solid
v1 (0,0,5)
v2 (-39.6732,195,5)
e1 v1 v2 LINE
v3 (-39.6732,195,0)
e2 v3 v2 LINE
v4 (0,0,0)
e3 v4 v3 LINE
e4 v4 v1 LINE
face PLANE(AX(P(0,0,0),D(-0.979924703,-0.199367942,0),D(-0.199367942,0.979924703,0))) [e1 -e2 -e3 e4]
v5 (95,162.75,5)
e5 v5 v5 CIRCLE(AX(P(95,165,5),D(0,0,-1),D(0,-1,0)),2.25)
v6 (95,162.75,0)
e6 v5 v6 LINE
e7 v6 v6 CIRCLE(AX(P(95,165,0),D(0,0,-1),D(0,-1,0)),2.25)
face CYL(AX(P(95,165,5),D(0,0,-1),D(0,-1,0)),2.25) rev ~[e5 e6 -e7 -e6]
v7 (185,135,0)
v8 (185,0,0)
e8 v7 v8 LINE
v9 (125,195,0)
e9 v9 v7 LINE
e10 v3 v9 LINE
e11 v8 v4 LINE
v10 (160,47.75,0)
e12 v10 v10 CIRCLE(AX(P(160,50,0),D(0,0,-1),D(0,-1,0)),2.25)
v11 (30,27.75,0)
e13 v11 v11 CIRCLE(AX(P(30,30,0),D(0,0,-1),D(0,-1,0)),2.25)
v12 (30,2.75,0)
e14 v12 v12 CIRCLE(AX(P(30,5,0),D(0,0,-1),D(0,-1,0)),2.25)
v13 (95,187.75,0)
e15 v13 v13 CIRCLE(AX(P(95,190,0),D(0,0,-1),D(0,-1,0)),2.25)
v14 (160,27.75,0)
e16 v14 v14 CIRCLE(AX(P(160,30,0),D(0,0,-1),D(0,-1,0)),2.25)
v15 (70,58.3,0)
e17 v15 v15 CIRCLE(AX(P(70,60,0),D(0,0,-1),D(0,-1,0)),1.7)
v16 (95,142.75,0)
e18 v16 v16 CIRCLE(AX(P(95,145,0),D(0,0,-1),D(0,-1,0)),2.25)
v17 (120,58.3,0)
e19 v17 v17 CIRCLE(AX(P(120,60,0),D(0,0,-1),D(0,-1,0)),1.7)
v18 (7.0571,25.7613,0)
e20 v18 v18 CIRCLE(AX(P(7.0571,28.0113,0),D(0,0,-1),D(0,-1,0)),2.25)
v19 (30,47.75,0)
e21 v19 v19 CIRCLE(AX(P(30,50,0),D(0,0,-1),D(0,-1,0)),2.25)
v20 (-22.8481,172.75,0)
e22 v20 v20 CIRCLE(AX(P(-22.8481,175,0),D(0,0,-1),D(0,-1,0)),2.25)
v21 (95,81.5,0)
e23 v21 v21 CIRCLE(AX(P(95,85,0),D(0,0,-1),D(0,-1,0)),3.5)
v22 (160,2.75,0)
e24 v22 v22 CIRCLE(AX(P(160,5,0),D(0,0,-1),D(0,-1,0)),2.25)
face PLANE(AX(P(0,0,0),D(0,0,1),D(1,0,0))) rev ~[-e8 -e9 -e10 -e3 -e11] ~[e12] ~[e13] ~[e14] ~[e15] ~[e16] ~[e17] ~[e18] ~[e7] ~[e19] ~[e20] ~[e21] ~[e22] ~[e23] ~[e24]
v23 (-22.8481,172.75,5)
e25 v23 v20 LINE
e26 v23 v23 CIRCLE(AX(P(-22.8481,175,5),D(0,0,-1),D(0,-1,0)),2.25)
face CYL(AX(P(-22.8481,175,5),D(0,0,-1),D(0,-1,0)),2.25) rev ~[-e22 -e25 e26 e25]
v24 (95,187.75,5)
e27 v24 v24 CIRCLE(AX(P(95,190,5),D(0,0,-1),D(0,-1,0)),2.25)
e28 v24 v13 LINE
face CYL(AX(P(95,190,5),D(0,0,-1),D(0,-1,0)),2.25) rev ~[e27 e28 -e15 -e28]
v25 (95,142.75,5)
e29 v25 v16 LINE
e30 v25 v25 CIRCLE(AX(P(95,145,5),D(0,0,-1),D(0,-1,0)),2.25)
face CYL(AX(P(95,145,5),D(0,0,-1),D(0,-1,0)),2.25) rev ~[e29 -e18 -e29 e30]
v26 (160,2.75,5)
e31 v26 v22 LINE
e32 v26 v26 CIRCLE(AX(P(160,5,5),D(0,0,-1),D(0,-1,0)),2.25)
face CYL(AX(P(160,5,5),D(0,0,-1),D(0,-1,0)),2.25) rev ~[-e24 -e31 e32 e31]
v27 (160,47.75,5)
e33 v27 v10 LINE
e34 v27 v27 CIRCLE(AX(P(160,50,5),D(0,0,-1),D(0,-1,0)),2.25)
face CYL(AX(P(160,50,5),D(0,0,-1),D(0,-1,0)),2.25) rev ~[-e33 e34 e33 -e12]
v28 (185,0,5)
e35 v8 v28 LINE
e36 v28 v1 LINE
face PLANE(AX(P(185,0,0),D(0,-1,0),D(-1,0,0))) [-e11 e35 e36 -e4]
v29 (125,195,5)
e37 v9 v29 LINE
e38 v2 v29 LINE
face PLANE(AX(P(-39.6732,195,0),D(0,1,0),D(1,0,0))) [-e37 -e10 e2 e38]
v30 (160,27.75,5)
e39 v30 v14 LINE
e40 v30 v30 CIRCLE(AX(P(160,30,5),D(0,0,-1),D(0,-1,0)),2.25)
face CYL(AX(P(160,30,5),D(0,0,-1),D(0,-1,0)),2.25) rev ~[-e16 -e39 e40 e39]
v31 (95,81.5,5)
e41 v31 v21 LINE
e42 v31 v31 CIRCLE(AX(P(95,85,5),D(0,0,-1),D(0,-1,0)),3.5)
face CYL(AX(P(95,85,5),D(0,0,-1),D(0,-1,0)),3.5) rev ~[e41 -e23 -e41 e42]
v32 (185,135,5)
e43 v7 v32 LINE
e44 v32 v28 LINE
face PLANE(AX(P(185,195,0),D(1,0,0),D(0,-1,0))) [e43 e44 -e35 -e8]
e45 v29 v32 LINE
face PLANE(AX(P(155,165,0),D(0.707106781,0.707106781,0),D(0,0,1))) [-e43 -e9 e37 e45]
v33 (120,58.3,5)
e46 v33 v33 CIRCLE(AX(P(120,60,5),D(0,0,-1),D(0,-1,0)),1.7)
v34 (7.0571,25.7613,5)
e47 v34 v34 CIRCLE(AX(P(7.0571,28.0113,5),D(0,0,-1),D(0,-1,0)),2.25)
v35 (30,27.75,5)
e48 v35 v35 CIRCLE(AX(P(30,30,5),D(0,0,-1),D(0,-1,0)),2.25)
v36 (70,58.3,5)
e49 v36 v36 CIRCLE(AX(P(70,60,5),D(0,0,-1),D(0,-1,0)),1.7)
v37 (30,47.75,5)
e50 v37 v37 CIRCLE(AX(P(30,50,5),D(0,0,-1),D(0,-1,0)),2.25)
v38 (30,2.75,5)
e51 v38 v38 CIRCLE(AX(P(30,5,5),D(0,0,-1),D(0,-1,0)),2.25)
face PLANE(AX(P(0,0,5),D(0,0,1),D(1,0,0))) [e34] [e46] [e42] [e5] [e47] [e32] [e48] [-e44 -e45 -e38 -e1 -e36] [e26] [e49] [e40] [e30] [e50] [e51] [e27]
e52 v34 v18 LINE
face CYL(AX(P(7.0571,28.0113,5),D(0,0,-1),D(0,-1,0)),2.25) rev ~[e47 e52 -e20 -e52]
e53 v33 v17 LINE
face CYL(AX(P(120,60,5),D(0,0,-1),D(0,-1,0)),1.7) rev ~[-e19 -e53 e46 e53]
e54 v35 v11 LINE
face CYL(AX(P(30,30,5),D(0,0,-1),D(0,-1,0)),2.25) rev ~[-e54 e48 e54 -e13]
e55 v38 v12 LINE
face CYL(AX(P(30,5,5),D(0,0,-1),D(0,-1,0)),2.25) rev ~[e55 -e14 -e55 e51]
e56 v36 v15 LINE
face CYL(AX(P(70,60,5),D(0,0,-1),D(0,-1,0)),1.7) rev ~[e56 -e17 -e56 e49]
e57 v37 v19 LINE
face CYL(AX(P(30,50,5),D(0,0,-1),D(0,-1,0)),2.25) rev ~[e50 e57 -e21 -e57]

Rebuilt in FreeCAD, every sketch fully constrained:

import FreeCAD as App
import Part
import Sketcher

V = App.Vector
Q = App.Units.Quantity


def edges_at(feature, points):
    """Names of the edges that pass closest to the given points."""
    edges = feature.Shape.Edges
    near = lambda p: min(range(len(edges)), key=lambda i: edges[i].distToShape(Part.Vertex(*p))[0])
    return sorted({f"Edge{near(p) + 1}" for p in points})


def add_polygon(sketch, points):
    """Adds a closed chain of lines whose ends are joined by coincident constraints."""
    first, n = sketch.GeometryCount, len(points)
    for a, b in zip(points, points[1:] + points[:1]):
        sketch.addGeometry(Part.LineSegment(App.Vector(*a, 0), App.Vector(*b, 0)), False)
    for i in range(n):
        sketch.addConstraint(Sketcher.Constraint("Coincident", first + i, 2, first + (i + 1) % n, 1))

doc = App.newDocument("Part")
params = doc.addObject("Spreadsheet::Sheet", "Params")
for row, (alias, value) in enumerate([
    ("sketch1_width", "185 mm"),
    ("sketch1_height", "195 mm"),
    ("pad1_length", "5 mm"),
    ("sketch2_diameter", "4.5 mm"),
    ("hole_diameter", "4.5 mm"),
    ("sketch3_diameter", "7 mm"),
    ("hole2_diameter", "7 mm"),
    ("sketch4_diameter", "3.4 mm"),
    ("hole3_diameter", "3.4 mm"),
    ("chamfer_size", "60 mm"),
    ("sketch5_diameter", "4.5 mm"),
    ("hole4_diameter", "4.5 mm"),
], start=1):
    params.set(f"A{row}", alias)
    params.set(f"B{row}", "=" + value)
    params.setAlias(f"B{row}", alias)

body = doc.addObject("PartDesign::Body", "Body")

# Sketch on XY plane
sketch1 = body.newObject("Sketcher::SketchObject", "Sketch")
sketch1.AttachmentSupport = (doc.getObject("XY_Plane"), [""])
sketch1.MapMode = "FlatFace"
add_polygon(sketch1, [(-39.6732, 195), (0, 0), (185, 0), (185, 195)])  # lines 0-3
sketch1.addConstraint([
    Sketcher.Constraint("Horizontal", 1),
    Sketcher.Constraint("Vertical", 2),
    Sketcher.Constraint("Horizontal", 3),
    Sketcher.Constraint("Coincident", 0, 2, -1, 1),
    Sketcher.Constraint("DistanceX", 1, 1, 1, 2, Q("185 mm")),
    Sketcher.Constraint("DistanceY", 2, 1, 2, 2, Q("195 mm")),
    Sketcher.Constraint("Angle", 0, Q("-78.5 deg")),
])
sketch1.setExpression("Constraints[8]", "Params.sketch1_width")
sketch1.setExpression("Constraints[9]", "Params.sketch1_height")
pad1 = body.newObject("PartDesign::Pad", "Pad")
pad1.Profile = sketch1
pad1.setExpression("Length", "Params.pad1_length")

# Sketch on XY plane
sketch2 = body.newObject("Sketcher::SketchObject", "Sketch001")
sketch2.AttachmentSupport = (doc.getObject("XY_Plane"), [""])
sketch2.MapMode = "FlatFace"
sketch2.AttachmentOffset = App.Placement(V(0, 0, 5), App.Rotation())
sketch2.addGeometry([
    Part.Circle(V(95, 165, 0), V(0, 0, 1), 2.25),  # 0
    Part.Circle(V(95, 145, 0), V(0, 0, 1), 2.25),  # 1
    Part.Circle(V(30, 50, 0), V(0, 0, 1), 2.25),  # 2
    Part.Circle(V(30, 30, 0), V(0, 0, 1), 2.25),  # 3
    Part.Circle(V(160, 50, 0), V(0, 0, 1), 2.25),  # 4
    Part.Circle(V(160, 30, 0), V(0, 0, 1), 2.25),  # 5
    Part.Circle(V(95, 190, 0), V(0, 0, 1), 2.25),  # 6
    Part.Circle(V(30, 5, 0), V(0, 0, 1), 2.25),  # 7
    Part.Circle(V(160, 5, 0), V(0, 0, 1), 2.25),  # 8
], False)
sketch2.addConstraint([
    Sketcher.Constraint("Equal", 0, 1),
    Sketcher.Constraint("Equal", 1, 2),
    Sketcher.Constraint("Equal", 2, 3),
    Sketcher.Constraint("Equal", 3, 4),
    Sketcher.Constraint("Equal", 4, 5),
    Sketcher.Constraint("Equal", 5, 6),
    Sketcher.Constraint("Equal", 6, 7),
    Sketcher.Constraint("Equal", 7, 8),
    Sketcher.Constraint("Horizontal", 2, 3, 4, 3),
    Sketcher.Constraint("Horizontal", 3, 3, 5, 3),
    Sketcher.Constraint("Horizontal", 7, 3, 8, 3),
    Sketcher.Constraint("Vertical", 0, 3, 1, 3),
    Sketcher.Constraint("Vertical", 2, 3, 3, 3),
    Sketcher.Constraint("Vertical", 4, 3, 5, 3),
    Sketcher.Constraint("Vertical", 1, 3, 6, 3),
    Sketcher.Constraint("Vertical", 3, 3, 7, 3),
    Sketcher.Constraint("Vertical", 5, 3, 8, 3),
    Sketcher.Constraint("Diameter", 0, Q("4.5 mm")),
    Sketcher.Constraint("DistanceX", -1, 1, 0, 3, Q("95 mm")),
    Sketcher.Constraint("DistanceY", -1, 1, 0, 3, Q("165 mm")),
    Sketcher.Constraint("DistanceY", -1, 1, 1, 3, Q("145 mm")),
    Sketcher.Constraint("DistanceX", -1, 1, 2, 3, Q("30 mm")),
    Sketcher.Constraint("DistanceY", -1, 1, 2, 3, Q("50 mm")),
    Sketcher.Constraint("DistanceY", -1, 1, 3, 3, Q("30 mm")),
    Sketcher.Constraint("DistanceX", -1, 1, 4, 3, Q("160 mm")),
    Sketcher.Constraint("DistanceY", -1, 1, 6, 3, Q("190 mm")),
    Sketcher.Constraint("DistanceY", -1, 1, 7, 3, Q("5 mm")),
])
sketch2.setExpression("Constraints[17]", "Params.sketch2_diameter")
doc.recompute()
hole = body.newObject("PartDesign::Hole", "Hole")
hole.Profile = sketch2
hole.ThreadType = "None"
hole.setExpression("Diameter", "Params.hole_diameter")
hole.DepthType = "ThroughAll"

# Sketch on XY plane
sketch3 = body.newObject("Sketcher::SketchObject", "Sketch002")
sketch3.AttachmentSupport = (doc.getObject("XY_Plane"), [""])
sketch3.MapMode = "FlatFace"
sketch3.AttachmentOffset = App.Placement(V(0, 0, 5), App.Rotation())
sketch3.addGeometry(Part.Circle(V(95, 85, 0), V(0, 0, 1), 3.5), False)
sketch3.addConstraint([
    Sketcher.Constraint("Diameter", 0, Q("7 mm")),
    Sketcher.Constraint("DistanceX", -1, 1, 0, 3, Q("95 mm")),
    Sketcher.Constraint("DistanceY", -1, 1, 0, 3, Q("85 mm")),
])
sketch3.setExpression("Constraints[0]", "Params.sketch3_diameter")
doc.recompute()
hole2 = body.newObject("PartDesign::Hole", "Hole001")
hole2.Profile = sketch3
hole2.ThreadType = "None"
hole2.setExpression("Diameter", "Params.hole2_diameter")
hole2.DepthType = "ThroughAll"

# Sketch on XY plane
sketch4 = body.newObject("Sketcher::SketchObject", "Sketch003")
sketch4.AttachmentSupport = (doc.getObject("XY_Plane"), [""])
sketch4.MapMode = "FlatFace"
sketch4.AttachmentOffset = App.Placement(V(0, 0, 5), App.Rotation())
sketch4.addGeometry([
    Part.Circle(V(120, 60, 0), V(0, 0, 1), 1.7),
    Part.Circle(V(70, 60, 0), V(0, 0, 1), 1.7),
], False)
sketch4.addConstraint([
    Sketcher.Constraint("Equal", 0, 1),
    Sketcher.Constraint("Horizontal", 0, 3, 1, 3),
    Sketcher.Constraint("Diameter", 0, Q("3.4 mm")),
    Sketcher.Constraint("DistanceX", -1, 1, 0, 3, Q("120 mm")),
    Sketcher.Constraint("DistanceY", -1, 1, 0, 3, Q("60 mm")),
    Sketcher.Constraint("DistanceX", -1, 1, 1, 3, Q("70 mm")),
])
sketch4.setExpression("Constraints[2]", "Params.sketch4_diameter")
doc.recompute()
hole3 = body.newObject("PartDesign::Hole", "Hole002")
hole3.Profile = sketch4
hole3.ThreadType = "None"
hole3.setExpression("Diameter", "Params.hole3_diameter")
hole3.DepthType = "ThroughAll"
doc.recompute()

chamfer = body.newObject("PartDesign::Chamfer", "Chamfer")
chamfer.Base = (hole3, edges_at(hole3, [(185, 195, 2.5)]))
chamfer.setExpression("Size", "Params.chamfer_size")

# Sketch on XY plane
sketch5 = body.newObject("Sketcher::SketchObject", "Sketch004")
sketch5.AttachmentSupport = (doc.getObject("XY_Plane"), [""])
sketch5.MapMode = "FlatFace"
sketch5.AttachmentOffset = App.Placement(V(0, 0, 5), App.Rotation())
sketch5.addGeometry([
    Part.Circle(V(-22.8481, 175, 0), V(0, 0, 1), 2.25),
    Part.Circle(V(7.0571, 28.0113, 0), V(0, 0, 1), 2.25),
], False)
sketch5.addConstraint([
    Sketcher.Constraint("Equal", 0, 1),
    Sketcher.Constraint("Diameter", 0, Q("4.5 mm")),
    Sketcher.Constraint("DistanceY", -1, 1, 0, 3, Q("175 mm")),
    Sketcher.Constraint("DistanceX", 0, 3, -1, 1, Q("22.848 mm")),
    Sketcher.Constraint("DistanceX", -1, 1, 1, 3, Q("7.057 mm")),
    Sketcher.Constraint("DistanceY", -1, 1, 1, 3, Q("28.0113 mm")),
])
sketch5.setExpression("Constraints[1]", "Params.sketch5_diameter")
doc.recompute()
hole4 = body.newObject("PartDesign::Hole", "Hole003")
hole4.Profile = sketch5
hole4.ThreadType = "None"
hole4.setExpression("Diameter", "Params.hole4_diameter")
hole4.DepthType = "ThroughAll"

doc.recompute()
